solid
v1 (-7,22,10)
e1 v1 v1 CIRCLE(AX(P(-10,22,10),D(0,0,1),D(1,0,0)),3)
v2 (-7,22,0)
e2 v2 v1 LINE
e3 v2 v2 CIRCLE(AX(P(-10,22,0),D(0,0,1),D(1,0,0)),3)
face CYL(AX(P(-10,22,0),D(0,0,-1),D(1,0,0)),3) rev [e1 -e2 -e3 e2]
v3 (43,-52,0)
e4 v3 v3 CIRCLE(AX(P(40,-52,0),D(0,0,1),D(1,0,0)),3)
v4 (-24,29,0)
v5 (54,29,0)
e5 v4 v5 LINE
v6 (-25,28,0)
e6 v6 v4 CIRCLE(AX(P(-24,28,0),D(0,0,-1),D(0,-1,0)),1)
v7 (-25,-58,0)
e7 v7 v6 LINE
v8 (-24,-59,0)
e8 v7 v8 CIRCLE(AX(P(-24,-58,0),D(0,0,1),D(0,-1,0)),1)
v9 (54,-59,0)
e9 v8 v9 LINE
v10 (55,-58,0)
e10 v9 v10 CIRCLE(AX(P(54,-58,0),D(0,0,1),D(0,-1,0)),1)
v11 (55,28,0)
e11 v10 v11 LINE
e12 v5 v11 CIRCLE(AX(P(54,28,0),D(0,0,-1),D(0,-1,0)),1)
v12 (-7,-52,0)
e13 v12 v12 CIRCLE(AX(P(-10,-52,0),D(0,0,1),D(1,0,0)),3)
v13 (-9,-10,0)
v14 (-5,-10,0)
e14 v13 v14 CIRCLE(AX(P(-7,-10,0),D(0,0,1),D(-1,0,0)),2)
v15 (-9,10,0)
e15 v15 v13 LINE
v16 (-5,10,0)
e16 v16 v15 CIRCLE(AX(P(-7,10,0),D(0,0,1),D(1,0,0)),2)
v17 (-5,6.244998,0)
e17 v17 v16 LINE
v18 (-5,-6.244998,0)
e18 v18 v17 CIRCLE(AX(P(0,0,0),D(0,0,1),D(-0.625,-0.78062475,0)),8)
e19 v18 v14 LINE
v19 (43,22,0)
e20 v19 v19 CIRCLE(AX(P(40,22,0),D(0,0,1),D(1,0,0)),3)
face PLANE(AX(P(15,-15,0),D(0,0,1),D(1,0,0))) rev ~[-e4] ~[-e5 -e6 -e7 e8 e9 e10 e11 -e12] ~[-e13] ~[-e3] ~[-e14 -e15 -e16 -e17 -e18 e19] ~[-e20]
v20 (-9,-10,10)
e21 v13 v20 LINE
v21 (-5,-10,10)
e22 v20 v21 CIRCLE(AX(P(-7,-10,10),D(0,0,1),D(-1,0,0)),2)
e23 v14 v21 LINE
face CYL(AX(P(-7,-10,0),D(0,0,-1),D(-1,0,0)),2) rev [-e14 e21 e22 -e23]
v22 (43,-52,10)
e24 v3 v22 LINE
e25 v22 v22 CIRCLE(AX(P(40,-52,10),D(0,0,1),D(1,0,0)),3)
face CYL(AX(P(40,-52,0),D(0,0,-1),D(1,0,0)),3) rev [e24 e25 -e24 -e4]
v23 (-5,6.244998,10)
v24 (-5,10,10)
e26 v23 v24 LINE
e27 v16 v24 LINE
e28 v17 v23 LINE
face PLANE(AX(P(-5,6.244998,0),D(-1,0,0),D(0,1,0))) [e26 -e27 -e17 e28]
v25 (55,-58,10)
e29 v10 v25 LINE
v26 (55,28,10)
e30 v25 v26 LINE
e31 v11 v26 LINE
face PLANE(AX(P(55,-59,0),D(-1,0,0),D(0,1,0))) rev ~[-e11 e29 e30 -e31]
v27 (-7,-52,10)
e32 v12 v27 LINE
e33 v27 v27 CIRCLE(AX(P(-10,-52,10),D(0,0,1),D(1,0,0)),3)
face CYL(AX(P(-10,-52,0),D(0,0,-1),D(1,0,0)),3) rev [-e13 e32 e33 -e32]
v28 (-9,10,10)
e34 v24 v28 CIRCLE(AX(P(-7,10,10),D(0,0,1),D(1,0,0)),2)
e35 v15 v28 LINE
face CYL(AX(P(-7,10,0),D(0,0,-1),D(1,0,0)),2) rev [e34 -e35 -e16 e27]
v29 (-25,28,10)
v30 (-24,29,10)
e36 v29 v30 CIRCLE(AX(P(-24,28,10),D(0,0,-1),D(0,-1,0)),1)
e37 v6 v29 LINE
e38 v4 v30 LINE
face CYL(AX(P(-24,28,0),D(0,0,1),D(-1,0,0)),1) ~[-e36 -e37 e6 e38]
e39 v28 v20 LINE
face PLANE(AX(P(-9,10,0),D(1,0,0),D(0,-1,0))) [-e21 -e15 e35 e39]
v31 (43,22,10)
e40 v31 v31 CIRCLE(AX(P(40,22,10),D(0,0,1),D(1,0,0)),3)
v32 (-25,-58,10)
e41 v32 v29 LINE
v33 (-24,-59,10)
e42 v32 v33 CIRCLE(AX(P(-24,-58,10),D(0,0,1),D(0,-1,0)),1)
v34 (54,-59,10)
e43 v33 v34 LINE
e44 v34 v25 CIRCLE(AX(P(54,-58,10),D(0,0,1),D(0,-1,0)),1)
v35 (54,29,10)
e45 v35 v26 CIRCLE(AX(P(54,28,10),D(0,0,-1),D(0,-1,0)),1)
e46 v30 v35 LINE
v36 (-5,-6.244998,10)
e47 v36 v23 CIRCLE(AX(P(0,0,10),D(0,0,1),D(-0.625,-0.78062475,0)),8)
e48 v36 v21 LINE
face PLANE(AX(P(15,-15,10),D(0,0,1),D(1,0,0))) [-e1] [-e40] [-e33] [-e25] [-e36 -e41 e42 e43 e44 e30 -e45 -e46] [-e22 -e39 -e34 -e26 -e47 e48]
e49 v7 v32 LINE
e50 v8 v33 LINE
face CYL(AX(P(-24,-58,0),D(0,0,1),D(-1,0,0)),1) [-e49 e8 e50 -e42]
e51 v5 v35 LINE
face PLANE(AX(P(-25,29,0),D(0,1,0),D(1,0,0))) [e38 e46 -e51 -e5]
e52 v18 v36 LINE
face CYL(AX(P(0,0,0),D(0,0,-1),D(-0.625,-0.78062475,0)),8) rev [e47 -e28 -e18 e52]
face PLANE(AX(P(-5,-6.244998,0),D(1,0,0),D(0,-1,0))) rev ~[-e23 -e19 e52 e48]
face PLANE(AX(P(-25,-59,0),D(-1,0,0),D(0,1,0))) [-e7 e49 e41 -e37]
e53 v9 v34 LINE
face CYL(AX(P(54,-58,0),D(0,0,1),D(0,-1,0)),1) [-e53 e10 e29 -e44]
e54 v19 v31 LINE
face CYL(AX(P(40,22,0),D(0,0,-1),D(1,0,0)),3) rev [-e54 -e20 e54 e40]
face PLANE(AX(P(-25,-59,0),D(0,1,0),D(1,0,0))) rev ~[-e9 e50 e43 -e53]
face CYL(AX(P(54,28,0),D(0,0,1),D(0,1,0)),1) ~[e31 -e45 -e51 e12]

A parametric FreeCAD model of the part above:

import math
import FreeCAD as App
import Part
import Sketcher
from FreeCAD import Vector
Q = App.Units.Quantity


def edges_at(feature, points):
    """Names of the edges that pass closest to the given points."""
    edges = feature.Shape.Edges
    near = lambda p: min(range(len(edges)), key=lambda i: edges[i].distToShape(Part.Vertex(*p))[0])
    return sorted({f"Edge{near(p) + 1}" for p in points})


def add_polygon(sketch, points):
    """Adds a closed chain of lines whose ends are joined by coincident constraints."""
    first, n = sketch.GeometryCount, len(points)
    for a, b in zip(points, points[1:] + points[:1]):
        sketch.addGeometry(Part.LineSegment(App.Vector(*a, 0), App.Vector(*b, 0)), False)
    for i in range(n):
        sketch.addConstraint(Sketcher.Constraint("Coincident", first + i, 2, first + (i + 1) % n, 1))

doc = App.newDocument("Part")
body = doc.addObject("PartDesign::Body", "Body")

sketch1 = body.newObject("Sketcher::SketchObject", "Sketch")
sketch1.AttachmentSupport = (doc.getObject("XY_Plane"), [""])
sketch1.MapMode = "FlatFace"
add_polygon(sketch1, [(-25, 29), (-25, -59), (55, -59), (55, 29)])
sketch1.addGeometry(Part.Circle(Vector(-10, -52, 0), Vector(0, 0, 1), 3), False)
sketch1.addGeometry(Part.Circle(Vector(40, -52, 0), Vector(0, 0, 1), 3), False)
sketch1.addGeometry(Part.ArcOfCircle(Part.Circle(Vector(0, 0, 0), Vector(0, 0, 1), 8), math.radians(-128.682187), math.radians(128.682187)), False)
sketch1.addGeometry(Part.LineSegment(Vector(-5, -6.244998, 0), Vector(-5, -10, 0)), False)
sketch1.addGeometry(Part.ArcOfCircle(Part.Circle(Vector(-7, -10, 0), Vector(0, 0, 1), 2), math.radians(180), math.radians(360)), False)
sketch1.addGeometry(Part.LineSegment(Vector(-9, -10, 0), Vector(-9, 10, 0)), False)
sketch1.addGeometry(Part.ArcOfCircle(Part.Circle(Vector(-7, 10, 0), Vector(0, 0, 1), 2), math.radians(0), math.radians(180)), False)
sketch1.addGeometry(Part.LineSegment(Vector(-5, 10, 0), Vector(-5, 6.244998, 0)), False)
sketch1.addGeometry(Part.Circle(Vector(-10, 22, 0), Vector(0, 0, 1), 3), False)
sketch1.addGeometry(Part.Circle(Vector(40, 22, 0), Vector(0, 0, 1), 3), False)
sketch1.addConstraint(Sketcher.Constraint("Coincident", 6, 1, 7, 1))
sketch1.addConstraint(Sketcher.Constraint("Tangent", 7, 2, 8, 2))
sketch1.addConstraint(Sketcher.Constraint("Tangent", 8, 1, 9, 1))
sketch1.addConstraint(Sketcher.Constraint("Tangent", 9, 2, 10, 2))
sketch1.addConstraint(Sketcher.Constraint("Tangent", 10, 1, 11, 1))
sketch1.addConstraint(Sketcher.Constraint("Coincident", 11, 2, 6, 2))
sketch1.addConstraint(Sketcher.Constraint("Vertical", 0))
sketch1.addConstraint(Sketcher.Constraint("Horizontal", 1))
sketch1.addConstraint(Sketcher.Constraint("Vertical", 2))
sketch1.addConstraint(Sketcher.Constraint("Horizontal", 3))
sketch1.addConstraint(Sketcher.Constraint("Vertical", 7))
sketch1.addConstraint(Sketcher.Constraint("Vertical", 9))
sketch1.addConstraint(Sketcher.Constraint("Vertical", 11))
sketch1.addConstraint(Sketcher.Constraint("Coincident", 6, 3, -1, 1))
sketch1.addConstraint(Sketcher.Constraint("Equal", 4, 5))
sketch1.addConstraint(Sketcher.Constraint("Equal", 8, 10))
sketch1.addConstraint(Sketcher.Constraint("Equal", 5, 12))
sketch1.addConstraint(Sketcher.Constraint("Equal", 12, 13))
sketch1.addConstraint(Sketcher.Constraint("Horizontal", 4, 3, 5, 3))
sketch1.addConstraint(Sketcher.Constraint("Horizontal", 12, 3, 13, 3))
sketch1.addConstraint(Sketcher.Constraint("Vertical", 4, 3, 12, 3))
sketch1.addConstraint(Sketcher.Constraint("Vertical", 5, 3, 13, 3))
sketch1.addConstraint(Sketcher.Constraint("Equal", 7, 11))
sketch1.addConstraint(Sketcher.Constraint("Diameter", 4, Q("6 mm")))
sketch1.addConstraint(Sketcher.Constraint("Radius", 6, Q("8 mm")))
sketch1.addConstraint(Sketcher.Constraint("Radius", 8, Q("2 mm")))
sketch1.addConstraint(Sketcher.Constraint("DistanceX", 1, 1, 1, 2, Q("80 mm")))
sketch1.addConstraint(Sketcher.Constraint("DistanceY", 0, 2, 0, 1, Q("88 mm")))
sketch1.addConstraint(Sketcher.Constraint("DistanceY", 9, 1, 9, 2, Q("20 mm")))
sketch1.addConstraint(Sketcher.Constraint("DistanceX", 4, 3, -1, 1, Q("10 mm")))
sketch1.addConstraint(Sketcher.Constraint("DistanceY", 4, 3, -1, 1, Q("52 mm")))
sketch1.addConstraint(Sketcher.Constraint("DistanceX", -1, 1, 5, 3, Q("40 mm")))
sketch1.addConstraint(Sketcher.Constraint("DistanceX", 8, 3, -1, 1, Q("7 mm")))
sketch1.addConstraint(Sketcher.Constraint("DistanceY", -1, 1, 12, 3, Q("22 mm")))
sketch1.addConstraint(Sketcher.Constraint("DistanceX", 0, 2, -1, 1, Q("25 mm")))
sketch1.addConstraint(Sketcher.Constraint("DistanceY", 0, 2, -1, 1, Q("59 mm")))
pad1 = body.newObject("PartDesign::Pad", "Pad")
pad1.Profile = sketch1
pad1.Length = 10
doc.recompute()

fillet = body.newObject("PartDesign::Fillet", "Fillet")
fillet.Base = (pad1, edges_at(pad1, [(-25, -59, 5), (-25, 29, 5)]))
fillet.Radius = 1
doc.recompute()

fillet2 = body.newObject("PartDesign::Fillet", "Fillet001")
fillet2.Base = (fillet, edges_at(fillet, [(55, -59, 5), (55, 29, 5)]))
fillet2.Radius = 1

doc.recompute()
